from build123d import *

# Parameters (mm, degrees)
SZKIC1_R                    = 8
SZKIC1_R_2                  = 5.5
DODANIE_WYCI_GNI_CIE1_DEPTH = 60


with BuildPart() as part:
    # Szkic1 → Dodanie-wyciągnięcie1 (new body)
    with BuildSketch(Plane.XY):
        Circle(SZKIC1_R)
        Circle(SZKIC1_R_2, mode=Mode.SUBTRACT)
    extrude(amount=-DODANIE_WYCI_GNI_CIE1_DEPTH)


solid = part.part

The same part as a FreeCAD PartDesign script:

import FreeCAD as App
import Part
import Sketcher
from FreeCAD import Vector
Q = App.Units.Quantity

doc = App.newDocument("Part")
params = doc.addObject("Spreadsheet::Sheet", "Params")
for row, (alias, value) in enumerate([
    ("sketch1_diameter", "16 mm"),
    ("sketch1_diameter2", "11 mm"),
    ("pad1_length", "60 mm"),
], start=1):
    params.set(f"A{row}", alias)
    params.set(f"B{row}", "=" + value)
    params.setAlias(f"B{row}", alias)

body = doc.addObject("PartDesign::Body", "Body")

# Sketch on XY plane
sketch1 = doc.addObject("Sketcher::SketchObject", "Sketch")
body.addObject(sketch1)
sketch1.AttachmentSupport = (doc.XY_Plane, [""])
sketch1.MapMode = "FlatFace"
sketch1.addGeometry(Part.Circle(Vector(0, 0, 0), Vector(0, 0, 1), 8), False)
sketch1.addGeometry(Part.Circle(Vector(0, 0, 0), Vector(0, 0, 1), 5.5), False)
sketch1.addConstraint(Sketcher.Constraint("Coincident", 0, 3, -1, 1))
sketch1.addConstraint(Sketcher.Constraint("Coincident", 1, 3, -1, 1))
sketch1.addConstraint(Sketcher.Constraint("Diameter", 0, Q("16 mm")))
sketch1.addConstraint(Sketcher.Constraint("Diameter", 1, Q("11 mm")))
sketch1.setExpression("Constraints[2]", "Params.sketch1_diameter")
sketch1.setExpression("Constraints[3]", "Params.sketch1_diameter2")
pad1 = doc.addObject("PartDesign::Pad", "Pad")
body.addObject(pad1)
pad1.Profile = sketch1
pad1.setExpression("Length", "Params.pad1_length")
pad1.Reversed = True

doc.recompute()
